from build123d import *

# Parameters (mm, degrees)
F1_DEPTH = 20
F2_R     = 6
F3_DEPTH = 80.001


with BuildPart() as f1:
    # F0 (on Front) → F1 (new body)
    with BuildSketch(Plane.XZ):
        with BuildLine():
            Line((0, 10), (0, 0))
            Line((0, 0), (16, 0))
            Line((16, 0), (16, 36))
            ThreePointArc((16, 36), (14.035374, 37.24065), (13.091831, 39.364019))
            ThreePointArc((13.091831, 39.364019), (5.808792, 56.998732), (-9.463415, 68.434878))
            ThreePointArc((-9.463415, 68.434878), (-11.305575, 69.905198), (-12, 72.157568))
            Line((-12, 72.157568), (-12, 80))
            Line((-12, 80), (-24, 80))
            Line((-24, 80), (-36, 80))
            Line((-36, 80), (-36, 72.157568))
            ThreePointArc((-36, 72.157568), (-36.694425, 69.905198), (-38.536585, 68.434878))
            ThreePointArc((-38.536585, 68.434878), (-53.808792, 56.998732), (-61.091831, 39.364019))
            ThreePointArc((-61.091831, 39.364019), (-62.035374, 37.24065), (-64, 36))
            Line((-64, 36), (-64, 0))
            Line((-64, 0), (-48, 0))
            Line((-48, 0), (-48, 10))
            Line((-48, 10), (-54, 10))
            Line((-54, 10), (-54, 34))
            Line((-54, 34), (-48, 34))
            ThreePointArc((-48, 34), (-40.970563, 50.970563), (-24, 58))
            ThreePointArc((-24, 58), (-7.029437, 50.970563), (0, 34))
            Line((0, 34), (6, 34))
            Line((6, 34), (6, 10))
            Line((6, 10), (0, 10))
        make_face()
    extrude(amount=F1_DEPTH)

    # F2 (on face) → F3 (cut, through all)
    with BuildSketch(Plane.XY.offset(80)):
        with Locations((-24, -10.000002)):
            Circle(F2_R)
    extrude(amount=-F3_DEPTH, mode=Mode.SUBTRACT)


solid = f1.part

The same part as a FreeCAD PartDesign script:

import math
import FreeCAD as App
import Part
import Sketcher

V = App.Vector
Q = App.Units.Quantity

doc = App.newDocument("Part")
body = doc.addObject("PartDesign::Body", "Body")

# Sketch on XZ plane
sketch1 = body.newObject("Sketcher::SketchObject", "Sketch")
sketch1.AttachmentSupport = (doc.getObject("XZ_Plane"), [""])
sketch1.MapMode = "FlatFace"
sketch1.addGeometry(Part.LineSegment(V(0, 10, 0), V(0, 0, 0)), False)
sketch1.addGeometry(Part.LineSegment(V(0, 0, 0), V(16, 0, 0)), False)
sketch1.addGeometry(Part.LineSegment(V(16, 0, 0), V(16, 36, 0)), False)
sketch1.addGeometry(Part.ArcOfCircle(Part.Circle(V(17.061385, 39.856613, 0), V(0, 0, 1), 4.000001), math.radians(-172.926148), math.radians(-105.387519)), False)
sketch1.addGeometry(Part.ArcOfCircle(Part.Circle(V(-22.634145, 34.930672, 0), V(0, 0, 1), 35.999999), math.radians(7.073848), math.radians(68.539874)), False)
sketch1.addGeometry(Part.ArcOfCircle(Part.Circle(V(-7.999996, 72.15757, 0), V(0, 0, 1), 4.000004), math.radians(-179.999974), math.radians(-111.460168)), False)
sketch1.addGeometry(Part.LineSegment(V(-12, 72.157568, 0), V(-12, 80, 0)), False)
sketch1.addGeometry(Part.LineSegment(V(-12, 80, 0), V(-36, 80, 0)), False)
sketch1.addGeometry(Part.LineSegment(V(-36, 80, 0), V(-36, 72.157568, 0)), False)
sketch1.addGeometry(Part.ArcOfCircle(Part.Circle(V(-40.000004, 72.15757, 0), V(0, 0, 1), 4.000004), math.radians(-68.539832), math.radians(-0.000026)), False)
sketch1.addGeometry(Part.ArcOfCircle(Part.Circle(V(-25.365855, 34.930672, 0), V(0, 0, 1), 35.999999), math.radians(111.460126), math.radians(172.926152)), False)
sketch1.addGeometry(Part.ArcOfCircle(Part.Circle(V(-65.061385, 39.856613, 0), V(0, 0, 1), 4.000001), math.radians(-74.612481), math.radians(-7.073852)), False)
sketch1.addGeometry(Part.LineSegment(V(-64, 36, 0), V(-64, 0, 0)), False)
sketch1.addGeometry(Part.LineSegment(V(-64, 0, 0), V(-48, 0, 0)), False)
sketch1.addGeometry(Part.LineSegment(V(-48, 0, 0), V(-48, 10, 0)), False)
sketch1.addGeometry(Part.LineSegment(V(-48, 10, 0), V(-54, 10, 0)), False)
sketch1.addGeometry(Part.LineSegment(V(-54, 10, 0), V(-54, 34, 0)), False)
sketch1.addGeometry(Part.LineSegment(V(-54, 34, 0), V(-48, 34, 0)), False)
sketch1.addGeometry(Part.ArcOfCircle(Part.Circle(V(-24.000001, 34.000001, 0), V(0, 0, 1), 23.999999), math.radians(89.999998), math.radians(180.000002)), False)
sketch1.addGeometry(Part.ArcOfCircle(Part.Circle(V(-23.999999, 34.000001, 0), V(0, 0, 1), 23.999999), math.radians(-0.000002), math.radians(90.000002)), False)
sketch1.addGeometry(Part.LineSegment(V(0, 34, 0), V(6, 34, 0)), False)
sketch1.addGeometry(Part.LineSegment(V(6, 34, 0), V(6, 10, 0)), False)
sketch1.addGeometry(Part.LineSegment(V(6, 10, 0), V(0, 10, 0)), False)
sketch1.addConstraint(Sketcher.Constraint("Coincident", 0, 2, 1, 1))
sketch1.addConstraint(Sketcher.Constraint("Coincident", 1, 2, 2, 1))
sketch1.addConstraint(Sketcher.Constraint("Coincident", 2, 2, 3, 2))
sketch1.addConstraint(Sketcher.Constraint("Tangent", 3, 1, 4, 1))
sketch1.addConstraint(Sketcher.Constraint("Tangent", 4, 2, 5, 2))
sketch1.addConstraint(Sketcher.Constraint("Tangent", 5, 1, 6, 1))
sketch1.addConstraint(Sketcher.Constraint("Coincident", 6, 2, 7, 1))
sketch1.addConstraint(Sketcher.Constraint("Coincident", 7, 2, 8, 1))
sketch1.addConstraint(Sketcher.Constraint("Tangent", 8, 2, 9, 2))
sketch1.addConstraint(Sketcher.Constraint("Tangent", 9, 1, 10, 1))
sketch1.addConstraint(Sketcher.Constraint("Tangent", 10, 2, 11, 2))
sketch1.addConstraint(Sketcher.Constraint("Coincident", 11, 1, 12, 1))
sketch1.addConstraint(Sketcher.Constraint("Coincident", 12, 2, 13, 1))
sketch1.addConstraint(Sketcher.Constraint("Coincident", 13, 2, 14, 1))
sketch1.addConstraint(Sketcher.Constraint("Coincident", 14, 2, 15, 1))
sketch1.addConstraint(Sketcher.Constraint("Coincident", 15, 2, 16, 1))
sketch1.addConstraint(Sketcher.Constraint("Coincident", 16, 2, 17, 1))
sketch1.addConstraint(Sketcher.Constraint("Coincident", 17, 2, 18, 2))
sketch1.addConstraint(Sketcher.Constraint("Tangent", 18, 1, 19, 2))
sketch1.addConstraint(Sketcher.Constraint("Coincident", 19, 1, 20, 1))
sketch1.addConstraint(Sketcher.Constraint("Coincident", 20, 2, 21, 1))
sketch1.addConstraint(Sketcher.Constraint("Coincident", 21, 2, 22, 1))
sketch1.addConstraint(Sketcher.Constraint("Coincident", 22, 2, 0, 1))
sketch1.addConstraint(Sketcher.Constraint("Vertical", 0))
sketch1.addConstraint(Sketcher.Constraint("Horizontal", 1))
sketch1.addConstraint(Sketcher.Constraint("Vertical", 2))
sketch1.addConstraint(Sketcher.Constraint("Vertical", 6))
sketch1.addConstraint(Sketcher.Constraint("Horizontal", 7))
sketch1.addConstraint(Sketcher.Constraint("Vertical", 8))
sketch1.addConstraint(Sketcher.Constraint("Vertical", 12))
sketch1.addConstraint(Sketcher.Constraint("Horizontal", 13))
sketch1.addConstraint(Sketcher.Constraint("Vertical", 14))
sketch1.addConstraint(Sketcher.Constraint("Horizontal", 15))
sketch1.addConstraint(Sketcher.Constraint("Vertical", 16))
sketch1.addConstraint(Sketcher.Constraint("Horizontal", 17))
sketch1.addConstraint(Sketcher.Constraint("Horizontal", 20))
sketch1.addConstraint(Sketcher.Constraint("Vertical", 21))
sketch1.addConstraint(Sketcher.Constraint("Horizontal", 22))
sketch1.addConstraint(Sketcher.Constraint("Coincident", 0, 2, -1, 1))
sketch1.addConstraint(Sketcher.Constraint("Equal", 5, 9))
sketch1.addConstraint(Sketcher.Constraint("Equal", 4, 10))
sketch1.addConstraint(Sketcher.Constraint("Equal", 3, 11))
sketch1.addConstraint(Sketcher.Constraint("Equal", 18, 19))
sketch1.addConstraint(Sketcher.Constraint("PointOnObject", 12, 2, -1))
sketch1.addConstraint(Sketcher.Constraint("PointOnObject", 19, 1, -2))
sketch1.addConstraint(Sketcher.Constraint("Horizontal", 5, 3, 9, 3))
sketch1.addConstraint(Sketcher.Constraint("Horizontal", 4, 3, 10, 3))
sketch1.addConstraint(Sketcher.Constraint("Horizontal", 3, 3, 11, 3))
sketch1.addConstraint(Sketcher.Constraint("Horizontal", 2, 2, 11, 1))
sketch1.addConstraint(Sketcher.Constraint("Horizontal", 19, 3, 16, 2))
sketch1.addConstraint(Sketcher.Constraint("Horizontal", 17, 2, 19, 1))
sketch1.addConstraint(Sketcher.Constraint("Horizontal", 15, 2, 21, 2))
sketch1.addConstraint(Sketcher.Constraint("Vertical", 14, 2, 17, 2))
sketch1.addConstraint(Sketcher.Constraint("Vertical", 19, 3, 18, 1))
sketch1.addConstraint(Sketcher.Constraint("Equal", 1, 13))
sketch1.addConstraint(Sketcher.Constraint("Equal", 17, 20))
sketch1.addConstraint(Sketcher.Constraint("Equal", 7, 16))
sketch1.addConstraint(Sketcher.Constraint("Radius", 3, Q("4.000001 mm")))
sketch1.addConstraint(Sketcher.Constraint("Radius", 4, Q("35.999999 mm")))
sketch1.addConstraint(Sketcher.Constraint("Radius", 18, Q("23.999999 mm")))
sketch1.addConstraint(Sketcher.Constraint("DistanceX", 1, 1, 1, 2, Q("16 mm")))
sketch1.addConstraint(Sketcher.Constraint("DistanceX", 7, 2, 7, 1, Q("24 mm")))
sketch1.addConstraint(Sketcher.Constraint("DistanceX", 15, 2, 15, 1, Q("6 mm")))
sketch1.addConstraint(Sketcher.Constraint("DistanceY", 0, 2, 0, 1, Q("10 mm")))
sketch1.addConstraint(Sketcher.Constraint("DistanceY", 2, 1, 2, 2, Q("36 mm")))
sketch1.addConstraint(Sketcher.Constraint("DistanceY", -1, 1, 6, 2, Q("80 mm")))
sketch1.addConstraint(Sketcher.Constraint("Radius", 5, Q("4.000004 mm")))
sketch1.addConstraint(Sketcher.Constraint("DistanceY", 6, 1, 6, 2, Q("7.842432 mm")))
sketch1.addConstraint(Sketcher.Constraint("DistanceX", -1, 1, 3, 1, Q("13.091831 mm")))
pad1 = body.newObject("PartDesign::Pad", "Pad")
pad1.Profile = sketch1
pad1.Length = 20

# Sketch on XY plane
sketch2 = body.newObject("Sketcher::SketchObject", "Sketch001")
sketch2.AttachmentSupport = (doc.getObject("XY_Plane"), [""])
sketch2.MapMode = "FlatFace"
sketch2.AttachmentOffset = App.Placement(V(0, 0, 80), App.Rotation())
sketch2.addGeometry(Part.Circle(V(-24, -10.000002, 0), V(0, 0, 1), 6), False)
sketch2.addConstraint(Sketcher.Constraint("Diameter", 0, Q("12 mm")))
sketch2.addConstraint(Sketcher.Constraint("DistanceX", 0, 3, -1, 1, Q("24 mm")))
sketch2.addConstraint(Sketcher.Constraint("DistanceY", 0, 3, -1, 1, Q("10.000002 mm")))
pocket1 = body.newObject("PartDesign::Pocket", "Pocket")
pocket1.Profile = sketch2
pocket1.Type = "ThroughAll"

doc.recompute()
